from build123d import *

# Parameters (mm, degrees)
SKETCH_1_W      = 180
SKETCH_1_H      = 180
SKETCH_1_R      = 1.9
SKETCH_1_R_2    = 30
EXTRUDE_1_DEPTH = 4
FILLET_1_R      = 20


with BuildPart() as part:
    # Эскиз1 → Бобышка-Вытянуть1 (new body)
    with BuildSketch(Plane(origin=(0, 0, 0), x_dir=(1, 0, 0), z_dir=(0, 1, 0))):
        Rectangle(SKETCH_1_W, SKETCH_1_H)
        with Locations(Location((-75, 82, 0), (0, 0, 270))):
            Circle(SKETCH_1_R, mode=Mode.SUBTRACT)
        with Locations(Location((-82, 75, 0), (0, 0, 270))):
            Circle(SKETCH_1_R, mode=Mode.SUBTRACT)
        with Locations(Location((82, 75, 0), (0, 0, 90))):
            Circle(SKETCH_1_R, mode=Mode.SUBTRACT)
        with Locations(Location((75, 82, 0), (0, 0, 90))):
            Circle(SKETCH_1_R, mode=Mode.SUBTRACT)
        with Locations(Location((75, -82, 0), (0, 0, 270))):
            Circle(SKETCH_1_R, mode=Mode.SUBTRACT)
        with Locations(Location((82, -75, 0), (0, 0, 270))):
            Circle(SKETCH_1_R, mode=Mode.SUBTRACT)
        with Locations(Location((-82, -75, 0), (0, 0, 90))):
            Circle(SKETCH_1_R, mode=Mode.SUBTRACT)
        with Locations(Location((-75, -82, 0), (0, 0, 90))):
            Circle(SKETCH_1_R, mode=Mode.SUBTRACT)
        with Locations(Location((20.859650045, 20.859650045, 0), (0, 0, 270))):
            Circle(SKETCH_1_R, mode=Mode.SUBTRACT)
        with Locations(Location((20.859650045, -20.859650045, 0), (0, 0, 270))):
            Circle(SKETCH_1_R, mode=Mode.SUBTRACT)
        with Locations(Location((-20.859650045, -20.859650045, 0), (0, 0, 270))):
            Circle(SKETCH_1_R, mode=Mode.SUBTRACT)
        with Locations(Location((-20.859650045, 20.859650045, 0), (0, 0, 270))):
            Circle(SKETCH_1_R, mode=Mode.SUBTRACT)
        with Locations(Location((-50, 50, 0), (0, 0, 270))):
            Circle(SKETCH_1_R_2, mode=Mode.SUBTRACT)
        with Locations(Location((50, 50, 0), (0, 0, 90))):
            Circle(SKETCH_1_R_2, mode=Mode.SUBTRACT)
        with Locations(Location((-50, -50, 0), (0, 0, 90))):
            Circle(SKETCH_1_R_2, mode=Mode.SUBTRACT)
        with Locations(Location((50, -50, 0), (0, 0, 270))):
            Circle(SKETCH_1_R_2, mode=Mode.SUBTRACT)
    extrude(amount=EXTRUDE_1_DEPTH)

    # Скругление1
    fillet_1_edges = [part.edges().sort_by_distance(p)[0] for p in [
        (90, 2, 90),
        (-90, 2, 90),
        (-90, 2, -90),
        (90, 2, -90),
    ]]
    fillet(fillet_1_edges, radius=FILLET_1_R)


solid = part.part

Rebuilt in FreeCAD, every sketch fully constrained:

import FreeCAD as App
import Part
import Sketcher

V = App.Vector
Q = App.Units.Quantity


def edges_at(feature, points):
    """Names of the edges that pass closest to the given points."""
    edges = feature.Shape.Edges
    near = lambda p: min(range(len(edges)), key=lambda i: edges[i].distToShape(Part.Vertex(*p))[0])
    return sorted({f"Edge{near(p) + 1}" for p in points})


def add_polygon(sketch, points):
    """Adds a closed chain of lines whose ends are joined by coincident constraints."""
    first, n = sketch.GeometryCount, len(points)
    for a, b in zip(points, points[1:] + points[:1]):
        sketch.addGeometry(Part.LineSegment(App.Vector(*a, 0), App.Vector(*b, 0)), False)
    for i in range(n):
        sketch.addConstraint(Sketcher.Constraint("Coincident", first + i, 2, first + (i + 1) % n, 1))

doc = App.newDocument("Part")
params = doc.addObject("Spreadsheet::Sheet", "Params")
for row, (alias, value) in enumerate([
    ("sketch1_diameter", "60 mm"),
    ("sketch1_diameter2", "3.8 mm"),
    ("sketch1_width", "180 mm"),
    ("pad1_length", "4 mm"),
    ("fillet_radius", "20 mm"),
], start=1):
    params.set(f"A{row}", alias)
    params.set(f"B{row}", "=" + value)
    params.setAlias(f"B{row}", alias)

body = doc.addObject("PartDesign::Body", "Body")

sketch1 = body.newObject("Sketcher::SketchObject", "Sketch")
sketch1.AttachmentSupport = (doc.getObject("XZ_Plane"), [""])
sketch1.MapMode = "FlatFace"
add_polygon(sketch1, [(-90, -90), (-90, 90), (90, 90), (90, -90)])
sketch1.addGeometry(Part.Circle(V(-75, 82, 0), V(0, 0, 1), 1.9), False)
sketch1.addGeometry(Part.Circle(V(-82, 75, 0), V(0, 0, 1), 1.9), False)
sketch1.addGeometry(Part.Circle(V(-50, 50, 0), V(0, 0, 1), 30), False)
sketch1.addGeometry(Part.Circle(V(-20.9, 20.9, 0), V(0, 0, 1), 1.9), False)
sketch1.addGeometry(Part.Circle(V(75, 82, 0), V(0, 0, 1), 1.9), False)
sketch1.addGeometry(Part.Circle(V(82, 75, 0), V(0, 0, 1), 1.9), False)
sketch1.addGeometry(Part.Circle(V(50, 50, 0), V(0, 0, 1), 30), False)
sketch1.addGeometry(Part.Circle(V(20.9, 20.9, 0), V(0, 0, 1), 1.9), False)
sketch1.addGeometry(Part.Circle(V(-20.9, -20.9, 0), V(0, 0, 1), 1.9), False)
sketch1.addGeometry(Part.Circle(V(-50, -50, 0), V(0, 0, 1), 30), False)
sketch1.addGeometry(Part.Circle(V(-82, -75, 0), V(0, 0, 1), 1.9), False)
sketch1.addGeometry(Part.Circle(V(-75, -82, 0), V(0, 0, 1), 1.9), False)
sketch1.addGeometry(Part.Circle(V(20.9, -20.9, 0), V(0, 0, 1), 1.9), False)
sketch1.addGeometry(Part.Circle(V(50, -50, 0), V(0, 0, 1), 30), False)
sketch1.addGeometry(Part.Circle(V(82, -75, 0), V(0, 0, 1), 1.9), False)
sketch1.addGeometry(Part.Circle(V(75, -82, 0), V(0, 0, 1), 1.9), False)
sketch1.addConstraint([
    Sketcher.Constraint("Vertical", 0),
    Sketcher.Constraint("Horizontal", 1),
    Sketcher.Constraint("Vertical", 2),
    Sketcher.Constraint("Horizontal", 3),
    Sketcher.Constraint("Equal", 4, 5),
    Sketcher.Constraint("Equal", 5, 7),
    Sketcher.Constraint("Equal", 7, 8),
    Sketcher.Constraint("Equal", 8, 9),
    Sketcher.Constraint("Equal", 6, 10),
    Sketcher.Constraint("Equal", 9, 11),
    Sketcher.Constraint("Equal", 11, 12),
    Sketcher.Constraint("Equal", 10, 13),
    Sketcher.Constraint("Equal", 12, 14),
    Sketcher.Constraint("Equal", 14, 15),
    Sketcher.Constraint("Equal", 15, 16),
    Sketcher.Constraint("Equal", 13, 17),
    Sketcher.Constraint("Equal", 16, 18),
    Sketcher.Constraint("Equal", 18, 19),
    Sketcher.Constraint("Symmetric", 11, 3, 12, 3, -1, 1),
    Sketcher.Constraint("Symmetric", 10, 3, 13, 3, -1, 1),
    Sketcher.Constraint("Symmetric", 9, 3, 14, 3, -1, 1),
    Sketcher.Constraint("Symmetric", 8, 3, 15, 3, -1, 1),
    Sketcher.Constraint("Symmetric", 7, 3, 16, 3, -1, 1),
    Sketcher.Constraint("Symmetric", 6, 3, 17, 3, -1, 1),
    Sketcher.Constraint("Symmetric", 5, 3, 18, 3, -1, 1),
    Sketcher.Constraint("Symmetric", 4, 3, 19, 3, -1, 1),
    Sketcher.Constraint("Symmetric", 0, 2, 2, 2, -1, 1),
    Sketcher.Constraint("Symmetric", 4, 3, 8, 3, -2),
    Sketcher.Constraint("Symmetric", 5, 3, 9, 3, -2),
    Sketcher.Constraint("Symmetric", 6, 3, 10, 3, -2),
    Sketcher.Constraint("Symmetric", 7, 3, 11, 3, -2),
    Sketcher.Constraint("Equal", 3, 0),
    Sketcher.Constraint("Diameter", 6, Q("60 mm")),
    Sketcher.Constraint("Diameter", 4, Q("3.8 mm")),
    Sketcher.Constraint("DistanceX", 1, 1, 1, 2, Q("180 mm")),
    Sketcher.Constraint("DistanceX", 4, 3, -1, 1, Q("75 mm")),
    Sketcher.Constraint("DistanceY", -1, 1, 4, 3, Q("82 mm")),
    Sketcher.Constraint("DistanceX", 5, 3, -1, 1, Q("82 mm")),
    Sketcher.Constraint("DistanceY", -1, 1, 5, 3, Q("75 mm")),
    Sketcher.Constraint("DistanceX", 6, 3, -1, 1, Q("50 mm")),
    Sketcher.Constraint("DistanceY", -1, 1, 6, 3, Q("50 mm")),
    Sketcher.Constraint("DistanceX", 7, 3, 11, 3, Q("41.7193 mm")),
    Sketcher.Constraint("DistanceY", 12, 3, 7, 3, Q("41.7193 mm")),
])
sketch1.setExpression("Constraints[36]", "Params.sketch1_diameter")
sketch1.setExpression("Constraints[37]", "Params.sketch1_diameter2")
sketch1.setExpression("Constraints[38]", "Params.sketch1_width")
pad1 = body.newObject("PartDesign::Pad", "Pad")
pad1.Profile = sketch1
pad1.setExpression("Length", "Params.pad1_length")
pad1.Reversed = True
doc.recompute()

fillet = body.newObject("PartDesign::Fillet", "Fillet")
fillet.Base = (pad1, edges_at(pad1, [
    (90, 2, 90),
    (-90, 2, 90),
    (-90, 2, -90),
    (90, 2, -90),
]))
fillet.setExpression("Radius", "Params.fillet_radius")

doc.recompute()
